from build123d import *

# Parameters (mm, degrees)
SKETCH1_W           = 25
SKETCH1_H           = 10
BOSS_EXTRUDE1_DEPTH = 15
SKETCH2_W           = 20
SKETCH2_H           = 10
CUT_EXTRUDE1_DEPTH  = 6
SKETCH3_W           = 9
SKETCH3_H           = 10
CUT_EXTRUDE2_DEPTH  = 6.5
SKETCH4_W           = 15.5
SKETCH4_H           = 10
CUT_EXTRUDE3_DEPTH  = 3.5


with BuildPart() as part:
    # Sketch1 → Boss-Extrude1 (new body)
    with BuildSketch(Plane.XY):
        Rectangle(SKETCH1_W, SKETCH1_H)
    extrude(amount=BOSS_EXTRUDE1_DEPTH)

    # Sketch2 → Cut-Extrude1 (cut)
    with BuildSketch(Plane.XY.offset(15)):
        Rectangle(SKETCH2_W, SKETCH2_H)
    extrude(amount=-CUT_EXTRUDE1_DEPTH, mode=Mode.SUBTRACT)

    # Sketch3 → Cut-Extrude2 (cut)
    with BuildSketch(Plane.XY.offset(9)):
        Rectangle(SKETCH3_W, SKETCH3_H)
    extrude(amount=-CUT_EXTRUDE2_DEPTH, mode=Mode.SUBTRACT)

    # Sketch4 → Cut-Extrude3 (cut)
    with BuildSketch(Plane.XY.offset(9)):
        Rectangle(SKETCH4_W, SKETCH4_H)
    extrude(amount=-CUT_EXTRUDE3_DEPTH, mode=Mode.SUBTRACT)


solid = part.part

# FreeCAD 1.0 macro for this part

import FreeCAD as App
import Part
import Sketcher
Q = App.Units.Quantity


def add_polygon(sketch, points):
    """Adds a closed chain of lines whose ends are joined by coincident constraints."""
    first, n = sketch.GeometryCount, len(points)
    for a, b in zip(points, points[1:] + points[:1]):
        sketch.addGeometry(Part.LineSegment(App.Vector(*a, 0), App.Vector(*b, 0)), False)
    for i in range(n):
        sketch.addConstraint(Sketcher.Constraint("Coincident", first + i, 2, first + (i + 1) % n, 1))

doc = App.newDocument("Part")
body = doc.addObject("PartDesign::Body", "Body")

# Sketch on XY plane
sketch1 = body.newObject("Sketcher::SketchObject", "Sketch")
sketch1.AttachmentSupport = (doc.getObject("XY_Plane"), [""])
sketch1.MapMode = "FlatFace"
add_polygon(sketch1, [(-12, 5), (-12, -5), (12, -5), (12, 5)])  # lines 0-3
sketch1.addConstraint(Sketcher.Constraint("Vertical", 0))
sketch1.addConstraint(Sketcher.Constraint("Horizontal", 1))
sketch1.addConstraint(Sketcher.Constraint("Vertical", 2))
sketch1.addConstraint(Sketcher.Constraint("Horizontal", 3))
sketch1.addConstraint(Sketcher.Constraint("Symmetric", 0, 2, 2, 2, -1, 1))
sketch1.addConstraint(Sketcher.Constraint("DistanceX", 1, 1, 1, 2, Q("25 mm")))
sketch1.addConstraint(Sketcher.Constraint("DistanceY", 0, 2, 0, 1, Q("10 mm")))
pad1 = body.newObject("PartDesign::Pad", "Pad")
pad1.Profile = sketch1
pad1.Length = 15

# Sketch on XY plane
sketch2 = body.newObject("Sketcher::SketchObject", "Sketch001")
sketch2.AttachmentSupport = (doc.getObject("XY_Plane"), [""])
sketch2.MapMode = "FlatFace"
sketch2.AttachmentOffset = App.Placement(App.Vector(0, 0, 15), App.Rotation())
add_polygon(sketch2, [(-10, 5), (-10, -5), (10, -5), (10, 5)])  # lines 0-3
sketch2.addConstraint(Sketcher.Constraint("Vertical", 0))
sketch2.addConstraint(Sketcher.Constraint("Horizontal", 1))
sketch2.addConstraint(Sketcher.Constraint("Vertical", 2))
sketch2.addConstraint(Sketcher.Constraint("Horizontal", 3))
sketch2.addConstraint(Sketcher.Constraint("Symmetric", 0, 2, 2, 2, -1, 1))
sketch2.addConstraint(Sketcher.Constraint("DistanceX", 1, 1, 1, 2, Q("20 mm")))
sketch2.addConstraint(Sketcher.Constraint("DistanceY", 0, 2, 0, 1, Q("10 mm")))
pocket1 = body.newObject("PartDesign::Pocket", "Pocket")
pocket1.Profile = sketch2
pocket1.Length = 6

# Sketch on XY plane
sketch3 = body.newObject("Sketcher::SketchObject", "Sketch002")
sketch3.AttachmentSupport = (doc.getObject("XY_Plane"), [""])
sketch3.MapMode = "FlatFace"
sketch3.AttachmentOffset = App.Placement(App.Vector(0, 0, 9), App.Rotation())
add_polygon(sketch3, [(-4, 5), (-4, -5), (4, -5), (4, 5)])  # lines 0-3
sketch3.addConstraint(Sketcher.Constraint("Vertical", 0))
sketch3.addConstraint(Sketcher.Constraint("Horizontal", 1))
sketch3.addConstraint(Sketcher.Constraint("Vertical", 2))
sketch3.addConstraint(Sketcher.Constraint("Horizontal", 3))
sketch3.addConstraint(Sketcher.Constraint("Symmetric", 0, 2, 2, 2, -1, 1))
sketch3.addConstraint(Sketcher.Constraint("DistanceX", 1, 1, 1, 2, Q("9 mm")))
sketch3.addConstraint(Sketcher.Constraint("DistanceY", 0, 2, 0, 1, Q("10 mm")))
pocket2 = body.newObject("PartDesign::Pocket", "Pocket001")
pocket2.Profile = sketch3
pocket2.Length = 6.5

# Sketch on XY plane
sketch4 = body.newObject("Sketcher::SketchObject", "Sketch003")
sketch4.AttachmentSupport = (doc.getObject("XY_Plane"), [""])
sketch4.MapMode = "FlatFace"
sketch4.AttachmentOffset = App.Placement(App.Vector(0, 0, 9), App.Rotation())
add_polygon(sketch4, [(-8, 5), (-8, -5), (8, -5), (8, 5)])  # lines 0-3
sketch4.addConstraint(Sketcher.Constraint("Vertical", 0))
sketch4.addConstraint(Sketcher.Constraint("Horizontal", 1))
sketch4.addConstraint(Sketcher.Constraint("Vertical", 2))
sketch4.addConstraint(Sketcher.Constraint("Horizontal", 3))
sketch4.addConstraint(Sketcher.Constraint("Symmetric", 0, 2, 2, 2, -1, 1))
sketch4.addConstraint(Sketcher.Constraint("DistanceY", 0, 2, 0, 1, Q("10 mm")))
sketch4.addConstraint(Sketcher.Constraint("DistanceX", 1, 1, 1, 2, Q("15.5 mm")))
pocket3 = body.newObject("PartDesign::Pocket", "Pocket002")
pocket3.Profile = sketch4
pocket3.Length = 3.5

doc.recompute()
